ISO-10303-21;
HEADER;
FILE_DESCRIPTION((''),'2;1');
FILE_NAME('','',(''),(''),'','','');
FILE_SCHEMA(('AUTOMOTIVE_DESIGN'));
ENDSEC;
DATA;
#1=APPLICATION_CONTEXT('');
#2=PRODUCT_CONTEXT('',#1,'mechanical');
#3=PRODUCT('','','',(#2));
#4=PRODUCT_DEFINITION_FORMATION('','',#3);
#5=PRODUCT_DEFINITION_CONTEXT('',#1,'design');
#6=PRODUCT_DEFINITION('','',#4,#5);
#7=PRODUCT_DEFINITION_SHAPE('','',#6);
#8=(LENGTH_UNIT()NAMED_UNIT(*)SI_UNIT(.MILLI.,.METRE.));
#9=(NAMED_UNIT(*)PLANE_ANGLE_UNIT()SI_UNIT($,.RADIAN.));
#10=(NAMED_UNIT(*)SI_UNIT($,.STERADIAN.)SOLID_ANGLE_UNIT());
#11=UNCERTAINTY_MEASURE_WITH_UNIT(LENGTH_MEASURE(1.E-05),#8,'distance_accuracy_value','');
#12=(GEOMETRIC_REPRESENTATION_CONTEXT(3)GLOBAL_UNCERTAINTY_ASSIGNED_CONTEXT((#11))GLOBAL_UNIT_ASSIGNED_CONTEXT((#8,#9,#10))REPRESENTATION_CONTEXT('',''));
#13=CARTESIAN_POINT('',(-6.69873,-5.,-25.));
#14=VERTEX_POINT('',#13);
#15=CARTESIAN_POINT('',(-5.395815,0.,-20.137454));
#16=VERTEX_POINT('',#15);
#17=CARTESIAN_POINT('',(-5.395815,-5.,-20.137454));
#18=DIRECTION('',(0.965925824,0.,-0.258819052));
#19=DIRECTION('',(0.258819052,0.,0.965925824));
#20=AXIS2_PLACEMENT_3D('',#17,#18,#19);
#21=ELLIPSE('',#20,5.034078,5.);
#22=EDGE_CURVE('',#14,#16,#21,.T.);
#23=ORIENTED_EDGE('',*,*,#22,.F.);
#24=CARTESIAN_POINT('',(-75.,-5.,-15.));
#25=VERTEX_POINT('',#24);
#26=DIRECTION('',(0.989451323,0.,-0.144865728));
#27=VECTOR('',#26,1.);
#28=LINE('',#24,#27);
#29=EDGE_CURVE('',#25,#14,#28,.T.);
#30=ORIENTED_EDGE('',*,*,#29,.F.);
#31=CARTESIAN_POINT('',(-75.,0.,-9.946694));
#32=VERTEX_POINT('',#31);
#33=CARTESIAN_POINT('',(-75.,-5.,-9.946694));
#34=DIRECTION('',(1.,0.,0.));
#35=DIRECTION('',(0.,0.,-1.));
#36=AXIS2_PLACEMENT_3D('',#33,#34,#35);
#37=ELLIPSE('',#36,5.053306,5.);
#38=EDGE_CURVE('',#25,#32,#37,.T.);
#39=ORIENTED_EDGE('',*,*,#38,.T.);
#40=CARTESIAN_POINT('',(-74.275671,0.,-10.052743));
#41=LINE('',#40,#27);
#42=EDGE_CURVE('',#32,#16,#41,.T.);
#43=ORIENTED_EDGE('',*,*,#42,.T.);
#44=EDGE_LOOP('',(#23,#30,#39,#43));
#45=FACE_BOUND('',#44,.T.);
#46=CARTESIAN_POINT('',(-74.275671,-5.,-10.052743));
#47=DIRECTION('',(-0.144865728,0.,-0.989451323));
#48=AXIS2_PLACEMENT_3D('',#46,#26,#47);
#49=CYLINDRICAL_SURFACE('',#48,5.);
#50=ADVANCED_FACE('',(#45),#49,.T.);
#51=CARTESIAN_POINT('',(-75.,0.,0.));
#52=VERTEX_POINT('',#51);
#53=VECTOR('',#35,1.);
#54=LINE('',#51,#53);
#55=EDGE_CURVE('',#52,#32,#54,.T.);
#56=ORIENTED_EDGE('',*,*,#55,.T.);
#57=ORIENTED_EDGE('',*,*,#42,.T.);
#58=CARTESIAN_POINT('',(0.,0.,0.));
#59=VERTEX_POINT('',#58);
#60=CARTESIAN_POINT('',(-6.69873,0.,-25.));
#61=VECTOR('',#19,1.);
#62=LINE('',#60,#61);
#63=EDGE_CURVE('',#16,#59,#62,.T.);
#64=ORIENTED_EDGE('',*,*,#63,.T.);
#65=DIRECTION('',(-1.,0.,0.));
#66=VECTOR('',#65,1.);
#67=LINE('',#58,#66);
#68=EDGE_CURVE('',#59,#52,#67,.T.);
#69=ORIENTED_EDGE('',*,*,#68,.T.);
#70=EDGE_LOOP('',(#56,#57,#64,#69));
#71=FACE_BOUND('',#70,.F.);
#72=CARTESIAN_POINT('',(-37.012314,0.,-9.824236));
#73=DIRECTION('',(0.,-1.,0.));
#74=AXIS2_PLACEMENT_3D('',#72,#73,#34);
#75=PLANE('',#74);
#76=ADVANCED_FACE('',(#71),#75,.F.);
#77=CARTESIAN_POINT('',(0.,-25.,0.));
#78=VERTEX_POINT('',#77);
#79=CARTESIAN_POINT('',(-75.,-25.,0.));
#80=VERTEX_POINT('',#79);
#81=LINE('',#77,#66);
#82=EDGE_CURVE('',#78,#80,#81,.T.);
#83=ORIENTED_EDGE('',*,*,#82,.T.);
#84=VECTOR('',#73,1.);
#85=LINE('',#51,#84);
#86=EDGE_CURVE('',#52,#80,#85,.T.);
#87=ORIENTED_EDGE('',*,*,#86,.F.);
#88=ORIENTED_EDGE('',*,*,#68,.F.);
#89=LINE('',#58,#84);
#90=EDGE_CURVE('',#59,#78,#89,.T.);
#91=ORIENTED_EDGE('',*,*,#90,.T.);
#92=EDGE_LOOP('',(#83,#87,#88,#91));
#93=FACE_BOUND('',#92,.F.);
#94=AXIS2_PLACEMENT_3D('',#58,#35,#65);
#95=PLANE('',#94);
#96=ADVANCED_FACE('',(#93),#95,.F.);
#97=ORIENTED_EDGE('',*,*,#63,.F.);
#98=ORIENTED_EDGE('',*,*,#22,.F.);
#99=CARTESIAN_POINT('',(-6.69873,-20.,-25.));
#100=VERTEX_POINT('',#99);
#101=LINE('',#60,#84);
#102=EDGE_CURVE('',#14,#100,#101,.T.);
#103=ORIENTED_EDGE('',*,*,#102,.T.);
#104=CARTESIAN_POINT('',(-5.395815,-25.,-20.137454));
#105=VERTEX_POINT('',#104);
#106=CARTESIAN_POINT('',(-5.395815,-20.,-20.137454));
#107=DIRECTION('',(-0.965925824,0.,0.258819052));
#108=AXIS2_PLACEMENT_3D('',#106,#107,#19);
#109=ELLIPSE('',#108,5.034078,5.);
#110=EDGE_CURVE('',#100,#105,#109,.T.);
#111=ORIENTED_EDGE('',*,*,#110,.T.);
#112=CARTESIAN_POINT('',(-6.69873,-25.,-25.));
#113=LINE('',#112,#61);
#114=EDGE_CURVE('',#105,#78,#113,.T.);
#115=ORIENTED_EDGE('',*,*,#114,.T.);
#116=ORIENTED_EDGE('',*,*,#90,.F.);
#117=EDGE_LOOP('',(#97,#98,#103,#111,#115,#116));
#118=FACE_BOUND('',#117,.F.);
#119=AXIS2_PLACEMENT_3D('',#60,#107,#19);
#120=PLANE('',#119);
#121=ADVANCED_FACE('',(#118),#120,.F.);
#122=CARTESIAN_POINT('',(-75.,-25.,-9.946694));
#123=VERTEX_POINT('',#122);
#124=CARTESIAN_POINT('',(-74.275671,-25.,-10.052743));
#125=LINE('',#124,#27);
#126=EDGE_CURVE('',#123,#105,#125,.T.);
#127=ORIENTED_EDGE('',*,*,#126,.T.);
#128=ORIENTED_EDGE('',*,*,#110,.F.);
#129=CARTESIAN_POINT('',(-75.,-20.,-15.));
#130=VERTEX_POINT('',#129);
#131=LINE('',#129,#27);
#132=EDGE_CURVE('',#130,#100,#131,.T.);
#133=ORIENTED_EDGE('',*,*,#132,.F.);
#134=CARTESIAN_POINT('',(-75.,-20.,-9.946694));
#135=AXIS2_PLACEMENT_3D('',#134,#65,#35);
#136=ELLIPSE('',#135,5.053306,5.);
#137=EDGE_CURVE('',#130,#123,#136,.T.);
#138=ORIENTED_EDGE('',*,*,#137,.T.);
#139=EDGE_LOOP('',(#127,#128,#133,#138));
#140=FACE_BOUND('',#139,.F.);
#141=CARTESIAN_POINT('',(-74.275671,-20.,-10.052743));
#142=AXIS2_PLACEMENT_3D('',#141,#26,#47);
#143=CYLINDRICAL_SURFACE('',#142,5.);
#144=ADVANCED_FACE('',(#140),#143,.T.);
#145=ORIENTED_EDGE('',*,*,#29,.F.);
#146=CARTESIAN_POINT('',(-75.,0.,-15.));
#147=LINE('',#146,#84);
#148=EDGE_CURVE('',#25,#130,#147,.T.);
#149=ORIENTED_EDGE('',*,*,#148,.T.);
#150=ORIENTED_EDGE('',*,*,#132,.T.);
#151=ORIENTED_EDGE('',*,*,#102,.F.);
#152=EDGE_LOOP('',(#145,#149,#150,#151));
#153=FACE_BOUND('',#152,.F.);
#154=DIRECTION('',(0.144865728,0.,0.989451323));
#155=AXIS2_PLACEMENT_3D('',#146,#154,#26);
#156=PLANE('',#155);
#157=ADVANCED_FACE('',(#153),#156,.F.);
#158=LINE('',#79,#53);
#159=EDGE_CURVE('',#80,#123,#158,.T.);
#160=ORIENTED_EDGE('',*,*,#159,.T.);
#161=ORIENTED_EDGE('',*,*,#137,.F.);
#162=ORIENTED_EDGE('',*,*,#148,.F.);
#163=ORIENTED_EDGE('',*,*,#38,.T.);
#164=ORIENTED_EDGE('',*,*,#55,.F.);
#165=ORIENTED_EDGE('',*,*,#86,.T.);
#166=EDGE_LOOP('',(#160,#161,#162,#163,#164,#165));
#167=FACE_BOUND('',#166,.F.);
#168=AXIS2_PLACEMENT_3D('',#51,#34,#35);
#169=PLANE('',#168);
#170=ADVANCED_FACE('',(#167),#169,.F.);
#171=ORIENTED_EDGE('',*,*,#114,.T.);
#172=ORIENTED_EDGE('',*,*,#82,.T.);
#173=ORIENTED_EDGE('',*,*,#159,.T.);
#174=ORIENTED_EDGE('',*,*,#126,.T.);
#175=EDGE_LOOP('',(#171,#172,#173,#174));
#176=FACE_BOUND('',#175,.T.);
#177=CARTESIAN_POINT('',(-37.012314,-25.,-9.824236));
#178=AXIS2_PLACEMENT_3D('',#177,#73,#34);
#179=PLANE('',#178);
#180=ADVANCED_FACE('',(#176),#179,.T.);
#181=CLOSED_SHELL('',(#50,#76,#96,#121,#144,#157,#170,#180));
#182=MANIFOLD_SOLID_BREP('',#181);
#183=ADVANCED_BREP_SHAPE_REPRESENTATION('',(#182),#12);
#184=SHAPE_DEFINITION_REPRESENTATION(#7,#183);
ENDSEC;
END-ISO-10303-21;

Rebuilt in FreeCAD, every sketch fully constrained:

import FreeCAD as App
import Part
import Sketcher
Q = App.Units.Quantity


def edges_at(feature, points):
    """Names of the edges that pass closest to the given points."""
    edges = feature.Shape.Edges
    near = lambda p: min(range(len(edges)), key=lambda i: edges[i].distToShape(Part.Vertex(*p))[0])
    return sorted({f"Edge{near(p) + 1}" for p in points})


def add_polygon(sketch, points):
    """Adds a closed chain of lines whose ends are joined by coincident constraints."""
    first, n = sketch.GeometryCount, len(points)
    for a, b in zip(points, points[1:] + points[:1]):
        sketch.addGeometry(Part.LineSegment(App.Vector(*a, 0), App.Vector(*b, 0)), False)
    for i in range(n):
        sketch.addConstraint(Sketcher.Constraint("Coincident", first + i, 2, first + (i + 1) % n, 1))

doc = App.newDocument("Part")
body = doc.addObject("PartDesign::Body", "Body")

# Sketch on XZ plane
sketch1 = doc.addObject("Sketcher::SketchObject", "Sketch")
body.addObject(sketch1)
sketch1.AttachmentSupport = (doc.XZ_Plane, [""])
sketch1.MapMode = "FlatFace"
add_polygon(sketch1, [(-7, -25), (0, 0), (-75, 0), (-75, -15)])  # lines 0-3
sketch1.addConstraint([
    Sketcher.Constraint("Horizontal", 1),
    Sketcher.Constraint("Vertical", 2),
    Sketcher.Constraint("Coincident", 0, 2, -1, 1),
    Sketcher.Constraint("DistanceX", 1, 2, 1, 1, Q("75 mm")),
    Sketcher.Constraint("DistanceY", 2, 2, 2, 1, Q("15 mm")),
    Sketcher.Constraint("Angle", 0, Q("75 deg")),
    Sketcher.Constraint("DistanceY", 3, 2, -1, 1, Q("25 mm")),
])
pad1 = doc.addObject("PartDesign::Pad", "Pad")
body.addObject(pad1)
pad1.Profile = sketch1
pad1.Length = 25
doc.recompute()

fillet = doc.addObject("PartDesign::Fillet", "Fillet")
body.addObject(fillet)
fillet.Base = (pad1, edges_at(pad1, [(-40.849, -25, -20), (-40.849, 0, -20)]))
fillet.Radius = 5

doc.recompute()
